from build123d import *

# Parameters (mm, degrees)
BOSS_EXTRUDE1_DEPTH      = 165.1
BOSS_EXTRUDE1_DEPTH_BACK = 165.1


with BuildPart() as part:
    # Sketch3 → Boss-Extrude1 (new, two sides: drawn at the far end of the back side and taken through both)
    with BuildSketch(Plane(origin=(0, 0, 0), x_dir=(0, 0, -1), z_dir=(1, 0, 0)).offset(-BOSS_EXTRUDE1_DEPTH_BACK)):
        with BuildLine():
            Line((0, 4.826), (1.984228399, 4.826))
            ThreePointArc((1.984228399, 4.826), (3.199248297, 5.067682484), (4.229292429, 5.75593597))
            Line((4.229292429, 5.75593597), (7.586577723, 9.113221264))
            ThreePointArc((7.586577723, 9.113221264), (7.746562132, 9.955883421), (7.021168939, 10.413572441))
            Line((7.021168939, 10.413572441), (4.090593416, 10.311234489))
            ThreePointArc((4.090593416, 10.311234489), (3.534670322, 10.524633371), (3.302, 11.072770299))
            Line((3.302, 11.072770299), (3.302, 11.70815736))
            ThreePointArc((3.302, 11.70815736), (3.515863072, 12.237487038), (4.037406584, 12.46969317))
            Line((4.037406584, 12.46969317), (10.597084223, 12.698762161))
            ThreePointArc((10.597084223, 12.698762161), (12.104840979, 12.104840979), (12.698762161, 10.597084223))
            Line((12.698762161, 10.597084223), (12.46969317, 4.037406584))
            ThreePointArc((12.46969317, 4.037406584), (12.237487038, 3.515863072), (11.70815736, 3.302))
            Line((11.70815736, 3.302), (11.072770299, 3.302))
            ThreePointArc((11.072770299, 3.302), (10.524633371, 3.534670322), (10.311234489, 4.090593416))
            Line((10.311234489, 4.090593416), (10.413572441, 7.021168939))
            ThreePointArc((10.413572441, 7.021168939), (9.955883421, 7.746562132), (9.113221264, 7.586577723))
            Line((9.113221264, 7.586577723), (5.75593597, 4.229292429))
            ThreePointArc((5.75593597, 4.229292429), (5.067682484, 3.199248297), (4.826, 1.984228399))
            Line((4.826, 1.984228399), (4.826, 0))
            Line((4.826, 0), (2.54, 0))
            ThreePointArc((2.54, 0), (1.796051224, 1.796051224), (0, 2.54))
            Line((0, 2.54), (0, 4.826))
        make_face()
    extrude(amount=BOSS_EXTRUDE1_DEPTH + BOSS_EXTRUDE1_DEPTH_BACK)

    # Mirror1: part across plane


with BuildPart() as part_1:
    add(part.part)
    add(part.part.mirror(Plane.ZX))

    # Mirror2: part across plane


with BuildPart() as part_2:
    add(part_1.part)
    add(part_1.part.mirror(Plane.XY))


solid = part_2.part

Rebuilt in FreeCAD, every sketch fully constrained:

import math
import FreeCAD as App
import Part
import Sketcher

V = App.Vector
Q = App.Units.Quantity

doc = App.newDocument("Part")
body = doc.addObject("PartDesign::Body", "Body")

sketch1 = doc.addObject("Sketcher::SketchObject", "Sketch")
body.addObject(sketch1)
sketch1.AttachmentSupport = (doc.YZ_Plane, [""])
sketch1.MapMode = "FlatFace"
sketch1.addGeometry([
    Part.LineSegment(V(4.826, -1.984228, 0), V(4.826, 0, 0)),
    Part.LineSegment(V(4.826, 0, 0), V(2.54, 0, 0)),
    Part.ArcOfCircle(Part.Circle(V(0, 0, 0), V(0, 0, 1), 2.54), math.radians(-90), math.radians(0)),
    Part.LineSegment(V(0, -2.54, 0), V(0, -4.826, 0)),
    Part.LineSegment(V(0, -4.826, 0), V(1.984228, -4.826, 0)),
    Part.ArcOfCircle(Part.Circle(V(1.984228, -8.001, 0), V(0, 0, 1), 3.175), math.radians(45), math.radians(90)),
    Part.LineSegment(V(4.229292, -5.755936, 0), V(7.586578, -9.113221, 0)),
    Part.ArcOfCircle(Part.Circle(V(7.047762, -9.652037, 0), V(0, 0, 1), 0.762), math.radians(-92), math.radians(45)),
    Part.LineSegment(V(7.021169, -10.413572, 0), V(4.090593, -10.311234, 0)),
    Part.ArcOfCircle(Part.Circle(V(4.064, -11.07277, 0), V(0, 0, 1), 0.762), math.radians(88), math.radians(180)),
    Part.LineSegment(V(3.302, -11.07277, 0), V(3.302, -11.708157, 0)),
    Part.ArcOfCircle(Part.Circle(V(4.064, -11.708157, 0), V(0, 0, 1), 0.762), math.radians(180), math.radians(268)),
    Part.LineSegment(V(4.037407, -12.469693, 0), V(10.597084, -12.698762, 0)),
    Part.ArcOfCircle(Part.Circle(V(10.668, -10.668, 0), V(0, 0, 1), 2.032), math.radians(-92), math.radians(2)),
    Part.LineSegment(V(12.698762, -10.597084, 0), V(12.469693, -4.037407, 0)),
    Part.ArcOfCircle(Part.Circle(V(11.708157, -4.064, 0), V(0, 0, 1), 0.762), math.radians(2), math.radians(90)),
    Part.LineSegment(V(11.708157, -3.302, 0), V(11.07277, -3.302, 0)),
    Part.ArcOfCircle(Part.Circle(V(11.07277, -4.064, 0), V(0, 0, 1), 0.762), math.radians(90), math.radians(182)),
    Part.LineSegment(V(10.311234, -4.090593, 0), V(10.413572, -7.021169, 0)),
    Part.ArcOfCircle(Part.Circle(V(9.652037, -7.047762, 0), V(0, 0, 1), 0.762), math.radians(-135), math.radians(2)),
    Part.LineSegment(V(9.113221, -7.586578, 0), V(5.755936, -4.229292, 0)),
    Part.ArcOfCircle(Part.Circle(V(8.001, -1.984228, 0), V(0, 0, 1), 3.175), math.radians(180), math.radians(225)),
], False)
sketch1.addConstraint([
    Sketcher.Constraint("Coincident", 0, 2, 1, 1),
    Sketcher.Constraint("Coincident", 1, 2, 2, 2),
    Sketcher.Constraint("Coincident", 2, 1, 3, 1),
    Sketcher.Constraint("Coincident", 3, 2, 4, 1),
    Sketcher.Constraint("Tangent", 4, 2, 5, 2),
    Sketcher.Constraint("Tangent", 5, 1, 6, 1),
    Sketcher.Constraint("Tangent", 6, 2, 7, 2),
    Sketcher.Constraint("Tangent", 7, 1, 8, 1),
    Sketcher.Constraint("Tangent", 8, 2, 9, 1),
    Sketcher.Constraint("Tangent", 9, 2, 10, 1),
    Sketcher.Constraint("Tangent", 10, 2, 11, 1),
    Sketcher.Constraint("Tangent", 11, 2, 12, 1),
    Sketcher.Constraint("Tangent", 12, 2, 13, 1),
    Sketcher.Constraint("Tangent", 13, 2, 14, 1),
    Sketcher.Constraint("Tangent", 14, 2, 15, 1),
    Sketcher.Constraint("Tangent", 15, 2, 16, 1),
    Sketcher.Constraint("Tangent", 16, 2, 17, 1),
    Sketcher.Constraint("Tangent", 17, 2, 18, 1),
    Sketcher.Constraint("Tangent", 18, 2, 19, 2),
    Sketcher.Constraint("Tangent", 19, 1, 20, 1),
    Sketcher.Constraint("Tangent", 20, 2, 21, 2),
    Sketcher.Constraint("Tangent", 21, 1, 0, 1),
    Sketcher.Constraint("Vertical", 0),
    Sketcher.Constraint("Horizontal", 1),
    Sketcher.Constraint("Vertical", 3),
    Sketcher.Constraint("Horizontal", 4),
    Sketcher.Constraint("Vertical", 10),
    Sketcher.Constraint("Horizontal", 16),
    Sketcher.Constraint("Coincident", 2, 3, -1, 1),
    Sketcher.Constraint("Equal", 7, 9),
    Sketcher.Constraint("Equal", 9, 11),
    Sketcher.Constraint("Equal", 11, 15),
    Sketcher.Constraint("Equal", 15, 17),
    Sketcher.Constraint("Equal", 17, 19),
    Sketcher.Constraint("Equal", 5, 21),
    Sketcher.Constraint("PointOnObject", 0, 2, -1),
    Sketcher.Constraint("PointOnObject", 2, 1, -2),
    Sketcher.Constraint("Parallel", 8, 12),
    Sketcher.Constraint("Parallel", 14, 18),
    Sketcher.Constraint("Parallel", 6, 20),
    Sketcher.Constraint("Equal", 4, 0),
    Sketcher.Constraint("Equal", 1, 3),
    Sketcher.Constraint("Equal", 16, 10),
    Sketcher.Constraint("Equal", 12, 14),
    Sketcher.Constraint("Equal", 8, 18),
    Sketcher.Constraint("Equal", 6, 20),
    Sketcher.Constraint("Radius", 2, Q("0.1 in")),
    Sketcher.Constraint("Radius", 7, Q("0.03 in")),
    Sketcher.Constraint("Radius", 13, Q("0.08 in")),
    Sketcher.Constraint("Angle", 6, Q("-45 deg")),
    Sketcher.Constraint("Angle", 8, Q("178 deg")),
    Sketcher.Constraint("Radius", 5, Q("0.125 in")),
    Sketcher.Constraint("DistanceX", 1, 2, 1, 1, Q("0.09 in")),
    Sketcher.Constraint("DistanceX", -1, 1, 9, 3, Q("0.16 in")),
    Sketcher.Constraint("DistanceX", -1, 1, 13, 3, Q("0.42 in")),
    Sketcher.Constraint("DistanceX", 4, 1, 4, 2, 1.984228),
    Sketcher.Constraint("DistanceY", 7, 3, 5, 1, 3.896101),
])
pad1 = doc.addObject("PartDesign::Pad", "Pad")
body.addObject(pad1)
pad1.Profile = sketch1
pad1.Type = "TwoLengths"
pad1.Length = Q("6.5 in")
pad1.Length2 = Q("6.5 in")
body2 = doc.addObject("PartDesign::Body", "Body001")
doc.recompute()

body2.BaseFeature = body
doc.recompute()

mirroring = doc.addObject("Part::Mirroring", "Mirroring")
mirroring.Source = body
mirroring.Base = V(0, 0, 0)
mirroring.Normal = V(0, 1, 0)
body3 = doc.addObject("PartDesign::Body", "Body002")
body3.BaseFeature = mirroring
boolean = doc.addObject("PartDesign::Boolean", "Boolean")
body2.addObject(boolean)
boolean.Type = "Fuse"
boolean.addObjects([body3])
doc.recompute()
body4 = doc.addObject("PartDesign::Body", "Body003")
doc.recompute()

body4.BaseFeature = body2
doc.recompute()

mirroring2 = doc.addObject("Part::Mirroring", "Mirroring001")
mirroring2.Source = body2
mirroring2.Base = V(0, 0, 0)
mirroring2.Normal = V(0, 0, 1)
body5 = doc.addObject("PartDesign::Body", "Body004")
body5.BaseFeature = mirroring2
boolean2 = doc.addObject("PartDesign::Boolean", "Boolean001")
body4.addObject(boolean2)
boolean2.Type = "Fuse"
boolean2.addObjects([body5])
doc.recompute()
mirroring.Visibility = False
mirroring2.Visibility = False

doc.recompute()
